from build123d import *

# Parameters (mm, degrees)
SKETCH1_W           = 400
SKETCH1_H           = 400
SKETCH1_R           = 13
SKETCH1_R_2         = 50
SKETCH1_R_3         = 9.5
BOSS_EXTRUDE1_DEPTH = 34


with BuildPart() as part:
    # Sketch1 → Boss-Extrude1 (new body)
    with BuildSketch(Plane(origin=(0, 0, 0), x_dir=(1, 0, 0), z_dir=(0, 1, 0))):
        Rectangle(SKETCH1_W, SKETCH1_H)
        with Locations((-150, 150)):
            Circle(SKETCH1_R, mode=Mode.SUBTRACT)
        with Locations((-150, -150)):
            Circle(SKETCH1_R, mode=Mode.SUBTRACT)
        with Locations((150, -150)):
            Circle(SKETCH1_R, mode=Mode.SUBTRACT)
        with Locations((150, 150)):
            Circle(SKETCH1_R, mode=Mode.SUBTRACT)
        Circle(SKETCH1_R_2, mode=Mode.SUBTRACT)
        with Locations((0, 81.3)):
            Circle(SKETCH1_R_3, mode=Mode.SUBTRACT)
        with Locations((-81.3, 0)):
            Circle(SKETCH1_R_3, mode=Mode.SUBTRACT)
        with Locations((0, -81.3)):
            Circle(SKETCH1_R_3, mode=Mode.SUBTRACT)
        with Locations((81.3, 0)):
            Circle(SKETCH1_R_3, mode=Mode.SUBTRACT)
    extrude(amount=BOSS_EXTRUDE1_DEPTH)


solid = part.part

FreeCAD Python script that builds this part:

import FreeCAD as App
import Part
import Sketcher
from FreeCAD import Vector

doc = App.newDocument("Part")
body = doc.addObject("PartDesign::Body", "Body")

sketch1 = body.newObject("Sketcher::SketchObject", "Sketch")
sketch1.AttachmentSupport = (doc.getObject("XZ_Plane"), [""])
sketch1.MapMode = "FlatFace"
sketch1.addGeometry([
    Part.LineSegment(Vector(-200, -200, 0), Vector(-200, 200, 0)),
    Part.LineSegment(Vector(-200, 200, 0), Vector(200, 200, 0)),
    Part.LineSegment(Vector(200, 200, 0), Vector(200, -200, 0)),
    Part.LineSegment(Vector(200, -200, 0), Vector(-200, -200, 0)),
    Part.Circle(Vector(-150, 150, 0), Vector(0, 0, 1), 13),
    Part.Circle(Vector(150, 150, 0), Vector(0, 0, 1), 13),
    Part.Circle(Vector(0, 81, 0), Vector(0, 0, 1), 10),
    Part.Circle(Vector(-81, 0, 0), Vector(0, 0, 1), 10),
    Part.Circle(Vector(-150, -150, 0), Vector(0, 0, 1), 13),
    Part.Circle(Vector(0, 0, 0), Vector(0, 0, 1), 50),
    Part.Circle(Vector(81, 0, 0), Vector(0, 0, 1), 10),
    Part.Circle(Vector(0, -81, 0), Vector(0, 0, 1), 10),
    Part.Circle(Vector(150, -150, 0), Vector(0, 0, 1), 13),
], False)
sketch1.addConstraint([
    Sketcher.Constraint("Coincident", 0, 2, 1, 1),
    Sketcher.Constraint("Coincident", 1, 2, 2, 1),
    Sketcher.Constraint("Coincident", 2, 2, 3, 1),
    Sketcher.Constraint("Coincident", 3, 2, 0, 1),
    Sketcher.Constraint("Vertical", 0),
    Sketcher.Constraint("Horizontal", 1),
    Sketcher.Constraint("Vertical", 2),
    Sketcher.Constraint("Horizontal", 3),
    Sketcher.Constraint("Coincident", 9, 3, -1, 1),
    Sketcher.Constraint("Equal", 4, 5),
    Sketcher.Constraint("Equal", 6, 7),
    Sketcher.Constraint("Equal", 5, 8),
    Sketcher.Constraint("Equal", 7, 10),
    Sketcher.Constraint("Equal", 10, 11),
    Sketcher.Constraint("Equal", 8, 12),
    Sketcher.Constraint("Symmetric", 5, 3, 8, 3, -1, 1),
    Sketcher.Constraint("Symmetric", 7, 3, 10, 3, -1, 1),
    Sketcher.Constraint("Symmetric", 6, 3, 11, 3, -1, 1),
    Sketcher.Constraint("Symmetric", 4, 3, 12, 3, -1, 1),
    Sketcher.Constraint("Symmetric", 0, 2, 2, 2, -1, 1),
    Sketcher.Constraint("Symmetric", 4, 3, 5, 3, -2),
    Sketcher.Constraint("PointOnObject", 6, 3, -2),
    Sketcher.Constraint("PointOnObject", 7, 3, -1),
    Sketcher.Constraint("Equal", 3, 0),
    Sketcher.Constraint("Diameter", 4, 26.0),
    Sketcher.Constraint("Diameter", 6, 19.0),
    Sketcher.Constraint("Diameter", 9, 100.0),
    Sketcher.Constraint("DistanceX", 1, 1, 1, 2, 400.0),
    Sketcher.Constraint("DistanceX", 4, 3, -1, 1, 150.0),
    Sketcher.Constraint("DistanceY", -1, 1, 4, 3, 150.0),
    Sketcher.Constraint("DistanceY", -1, 1, 6, 3, 81.3),
    Sketcher.Constraint("DistanceX", 7, 3, -1, 1, 81.3),
])
pad1 = body.newObject("PartDesign::Pad", "Pad")
pad1.Profile = sketch1
pad1.Length = 34
pad1.Reversed = True

doc.recompute()
